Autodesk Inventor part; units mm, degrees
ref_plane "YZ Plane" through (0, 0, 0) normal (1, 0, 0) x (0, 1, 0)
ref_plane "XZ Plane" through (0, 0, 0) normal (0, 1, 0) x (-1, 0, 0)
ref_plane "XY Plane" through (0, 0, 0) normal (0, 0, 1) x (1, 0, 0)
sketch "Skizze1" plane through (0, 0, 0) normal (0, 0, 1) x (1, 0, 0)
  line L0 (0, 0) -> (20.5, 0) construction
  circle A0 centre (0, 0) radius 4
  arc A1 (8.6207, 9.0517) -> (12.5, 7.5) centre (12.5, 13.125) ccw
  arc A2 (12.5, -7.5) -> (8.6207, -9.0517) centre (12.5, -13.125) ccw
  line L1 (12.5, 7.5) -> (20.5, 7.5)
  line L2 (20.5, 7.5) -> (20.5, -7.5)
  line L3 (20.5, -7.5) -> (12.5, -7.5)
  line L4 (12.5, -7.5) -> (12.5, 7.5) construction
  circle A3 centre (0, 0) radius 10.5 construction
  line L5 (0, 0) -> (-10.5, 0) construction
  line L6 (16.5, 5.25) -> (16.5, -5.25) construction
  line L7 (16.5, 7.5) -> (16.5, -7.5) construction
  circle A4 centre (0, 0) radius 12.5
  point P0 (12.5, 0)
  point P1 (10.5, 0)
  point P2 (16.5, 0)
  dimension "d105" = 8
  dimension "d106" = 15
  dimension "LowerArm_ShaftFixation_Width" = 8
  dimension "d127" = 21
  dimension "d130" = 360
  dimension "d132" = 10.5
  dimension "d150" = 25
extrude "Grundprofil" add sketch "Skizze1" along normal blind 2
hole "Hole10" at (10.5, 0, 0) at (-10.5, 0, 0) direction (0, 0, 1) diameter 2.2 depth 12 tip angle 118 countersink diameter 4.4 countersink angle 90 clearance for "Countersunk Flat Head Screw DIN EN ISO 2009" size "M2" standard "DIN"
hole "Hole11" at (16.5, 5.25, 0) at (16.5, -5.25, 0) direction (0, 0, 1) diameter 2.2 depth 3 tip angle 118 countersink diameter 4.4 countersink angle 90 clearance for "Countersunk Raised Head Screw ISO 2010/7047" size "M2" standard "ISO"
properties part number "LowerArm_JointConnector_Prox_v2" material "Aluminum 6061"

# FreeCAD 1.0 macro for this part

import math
import FreeCAD as App
import Part
import Sketcher
from FreeCAD import Vector

doc = App.newDocument("Part")
body = doc.addObject("PartDesign::Body", "Body")

sketch1 = body.newObject("Sketcher::SketchObject", "Sketch")
sketch1.AttachmentSupport = (doc.getObject("XY_Plane"), [""])
sketch1.MapMode = "FlatFace"
sketch1.addGeometry([
    Part.ArcOfCircle(Part.Circle(Vector(12.5, 13.1, 0), Vector(0, 0, 1), 5.6), math.radians(-134), math.radians(-90)),
    Part.ArcOfCircle(Part.Circle(Vector(0, 0, 0), Vector(0, 0, 1), 12.5), math.radians(46), math.radians(314)),
    Part.ArcOfCircle(Part.Circle(Vector(12.5, -13.1, 0), Vector(0, 0, 1), 5.6), math.radians(90), math.radians(134)),
    Part.LineSegment(Vector(12.5, -7.5, 0), Vector(20.5, -7.5, 0)),
    Part.LineSegment(Vector(20.5, -7.5, 0), Vector(20.5, 7.5, 0)),
    Part.LineSegment(Vector(20.5, 7.5, 0), Vector(12.5, 7.5, 0)),
    Part.Circle(Vector(0, 0, 0), Vector(0, 0, 1), 4),
], False)
sketch1.addConstraint([
    Sketcher.Constraint("Tangent", 0, 1, 1, 1),
    Sketcher.Constraint("Tangent", 1, 2, 2, 2),
    Sketcher.Constraint("Tangent", 2, 1, 3, 1),
    Sketcher.Constraint("Coincident", 3, 2, 4, 1),
    Sketcher.Constraint("Coincident", 4, 2, 5, 1),
    Sketcher.Constraint("Tangent", 5, 2, 0, 2),
    Sketcher.Constraint("Horizontal", 3),
    Sketcher.Constraint("Vertical", 4),
    Sketcher.Constraint("Horizontal", 5),
    Sketcher.Constraint("Coincident", 1, 3, -1, 1),
    Sketcher.Constraint("Coincident", 6, 3, -1, 1),
    Sketcher.Constraint("Equal", 0, 2),
    Sketcher.Constraint("Vertical", 0, 3, 2, 3),
    Sketcher.Constraint("Diameter", 6, 8.0),
    Sketcher.Constraint("Radius", 1, 12.5),
    Sketcher.Constraint("DistanceX", 3, 1, 3, 2, 8.0),
    Sketcher.Constraint("DistanceY", 4, 1, 4, 2, 15.0),
    Sketcher.Constraint("Radius", 0, 5.625),
])
pad1 = body.newObject("PartDesign::Pad", "Pad")
pad1.Profile = sketch1
pad1.Length = 2

sketch2 = body.newObject("Sketcher::SketchObject", "Sketch001")
sketch2.AttachmentSupport = (doc.getObject("XY_Plane"), [""])
sketch2.MapMode = "FlatFace"
sketch2.addGeometry([
    Part.Circle(Vector(10.5, 0, 0), Vector(0, 0, 1), 1.1),
    Part.Circle(Vector(-10.5, 0, 0), Vector(0, 0, 1), 1.1),
], False)
sketch2.addConstraint([
    Sketcher.Constraint("Equal", 0, 1),
    Sketcher.Constraint("Symmetric", 0, 3, 1, 3, -1, 1),
    Sketcher.Constraint("PointOnObject", 0, 3, -1),
    Sketcher.Constraint("Diameter", 0, 2.2),
    Sketcher.Constraint("DistanceX", 1, 3, 0, 3, 21.0),
])
doc.recompute()
hole = body.newObject("PartDesign::Hole", "Hole")
hole.Profile = sketch2
hole.ThreadType = "None"
hole.Diameter = 2.2
hole.DepthType = "Dimension"
hole.Depth = 12
hole.DrillPoint = "Angled"
hole.DrillPointAngle = 118
hole.HoleCutType = "Countersink"
hole.HoleCutDiameter = 4.4
hole.HoleCutCountersinkAngle = 90
hole.Reversed = True

sketch3 = body.newObject("Sketcher::SketchObject", "Sketch002")
sketch3.AttachmentSupport = (doc.getObject("XY_Plane"), [""])
sketch3.MapMode = "FlatFace"
sketch3.addGeometry([
    Part.Circle(Vector(16.5, 5.2, 0), Vector(0, 0, 1), 1.1),
    Part.Circle(Vector(16.5, -5.2, 0), Vector(0, 0, 1), 1.1),
], False)
sketch3.addConstraint([
    Sketcher.Constraint("Equal", 0, 1),
    Sketcher.Constraint("Symmetric", 0, 3, 1, 3, -1),
    Sketcher.Constraint("Diameter", 0, 2.2),
    Sketcher.Constraint("DistanceX", -1, 1, 0, 3, 16.5),
    Sketcher.Constraint("DistanceY", 1, 3, 0, 3, 10.5),
])
doc.recompute()
hole2 = body.newObject("PartDesign::Hole", "Hole001")
hole2.Profile = sketch3
hole2.ThreadType = "None"
hole2.Diameter = 2.2
hole2.DepthType = "Dimension"
hole2.Depth = 3
hole2.DrillPoint = "Angled"
hole2.DrillPointAngle = 118
hole2.HoleCutType = "Countersink"
hole2.HoleCutDiameter = 4.4
hole2.HoleCutCountersinkAngle = 90
hole2.Reversed = True

doc.recompute()
